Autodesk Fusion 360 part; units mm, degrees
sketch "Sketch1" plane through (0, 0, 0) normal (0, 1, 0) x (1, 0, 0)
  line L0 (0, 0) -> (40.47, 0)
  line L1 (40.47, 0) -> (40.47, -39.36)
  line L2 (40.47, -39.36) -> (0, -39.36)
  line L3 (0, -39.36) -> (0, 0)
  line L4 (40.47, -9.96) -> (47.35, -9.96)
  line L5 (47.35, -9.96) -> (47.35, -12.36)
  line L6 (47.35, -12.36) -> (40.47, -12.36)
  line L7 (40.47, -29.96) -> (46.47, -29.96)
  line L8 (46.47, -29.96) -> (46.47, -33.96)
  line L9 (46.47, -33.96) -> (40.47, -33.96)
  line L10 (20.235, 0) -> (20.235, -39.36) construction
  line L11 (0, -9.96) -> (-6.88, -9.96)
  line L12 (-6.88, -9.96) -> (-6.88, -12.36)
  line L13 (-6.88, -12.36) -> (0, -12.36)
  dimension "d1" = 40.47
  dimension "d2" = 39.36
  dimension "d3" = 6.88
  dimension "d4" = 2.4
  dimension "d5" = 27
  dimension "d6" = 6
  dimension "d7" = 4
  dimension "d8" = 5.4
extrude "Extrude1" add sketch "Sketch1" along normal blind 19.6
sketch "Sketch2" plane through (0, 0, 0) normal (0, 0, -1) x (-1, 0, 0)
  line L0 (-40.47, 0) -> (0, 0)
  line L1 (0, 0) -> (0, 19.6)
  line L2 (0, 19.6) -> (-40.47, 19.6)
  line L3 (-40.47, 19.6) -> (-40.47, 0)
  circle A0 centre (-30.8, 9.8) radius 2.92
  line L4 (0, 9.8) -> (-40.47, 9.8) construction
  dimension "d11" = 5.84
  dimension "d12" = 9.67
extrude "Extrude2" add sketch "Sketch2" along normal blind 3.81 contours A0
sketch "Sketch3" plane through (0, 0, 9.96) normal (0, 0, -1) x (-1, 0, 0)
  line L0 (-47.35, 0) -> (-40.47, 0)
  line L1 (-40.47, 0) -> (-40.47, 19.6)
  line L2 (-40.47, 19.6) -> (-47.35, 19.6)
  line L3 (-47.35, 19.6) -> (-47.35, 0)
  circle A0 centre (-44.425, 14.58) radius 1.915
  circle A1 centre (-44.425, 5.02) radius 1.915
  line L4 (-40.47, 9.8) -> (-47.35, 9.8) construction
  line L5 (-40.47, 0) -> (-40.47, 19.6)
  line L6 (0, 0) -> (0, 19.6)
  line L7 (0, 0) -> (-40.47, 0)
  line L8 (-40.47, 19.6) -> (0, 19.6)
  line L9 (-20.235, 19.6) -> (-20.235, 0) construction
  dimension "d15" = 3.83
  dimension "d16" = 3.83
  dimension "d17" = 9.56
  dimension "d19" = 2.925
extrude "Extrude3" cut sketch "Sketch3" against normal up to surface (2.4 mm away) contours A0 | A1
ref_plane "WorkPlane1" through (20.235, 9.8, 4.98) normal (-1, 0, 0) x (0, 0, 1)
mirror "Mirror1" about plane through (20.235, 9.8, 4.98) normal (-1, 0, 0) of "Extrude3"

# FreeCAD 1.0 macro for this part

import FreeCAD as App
import Part
import Sketcher
Q = App.Units.Quantity


def add_polygon(sketch, points):
    """Adds a closed chain of lines whose ends are joined by coincident constraints."""
    first, n = sketch.GeometryCount, len(points)
    for a, b in zip(points, points[1:] + points[:1]):
        sketch.addGeometry(Part.LineSegment(App.Vector(*a, 0), App.Vector(*b, 0)), False)
    for i in range(n):
        sketch.addConstraint(Sketcher.Constraint("Coincident", first + i, 2, first + (i + 1) % n, 1))

doc = App.newDocument("Part")
params = doc.addObject("Spreadsheet::Sheet", "Params")
for row, (alias, value) in enumerate([
    ("sketch1_width", "6 mm"),
    ("sketch1_height", "27 mm"),
    ("sketch1_height2", "4 mm"),
    ("sketch1_height3", "2.4 mm"),
    ("sketch1_height4", "5.4 mm"),
    ("pad1_length", "19.6 mm"),
    ("sketch2_diameter", "5.84 mm"),
    ("pad2_length", "3.81 mm"),
    ("sketch3_diameter", "3.83 mm"),
    ("pocket1_length", "2.4 mm"),
], start=1):
    params.set(f"A{row}", alias)
    params.set(f"B{row}", "=" + value)
    params.setAlias(f"B{row}", alias)

body = doc.addObject("PartDesign::Body", "Body")

sketch1 = body.newObject("Sketcher::SketchObject", "Sketch")
sketch1.AttachmentSupport = (doc.getObject("XZ_Plane"), [""])
sketch1.MapMode = "FlatFace"
add_polygon(sketch1, [(40.5, 0), (0, 0), (0, 10), (-6.9, 10), (-6.9, 12.4), (0, 12.4), (0, 39.4), (40.5, 39.4), (40.5, 34), (46.5, 34), (46.5, 30), (40.5, 30), (40.5, 12.4), (47.4, 12.4), (47.4, 10), (40.5, 10)])
sketch1.addConstraint(Sketcher.Constraint("Horizontal", 0))
sketch1.addConstraint(Sketcher.Constraint("Vertical", 1))
sketch1.addConstraint(Sketcher.Constraint("Horizontal", 2))
sketch1.addConstraint(Sketcher.Constraint("Vertical", 3))
sketch1.addConstraint(Sketcher.Constraint("Horizontal", 4))
sketch1.addConstraint(Sketcher.Constraint("Vertical", 5))
sketch1.addConstraint(Sketcher.Constraint("Horizontal", 6))
sketch1.addConstraint(Sketcher.Constraint("Vertical", 7))
sketch1.addConstraint(Sketcher.Constraint("Horizontal", 8))
sketch1.addConstraint(Sketcher.Constraint("Vertical", 9))
sketch1.addConstraint(Sketcher.Constraint("Horizontal", 10))
sketch1.addConstraint(Sketcher.Constraint("Vertical", 11))
sketch1.addConstraint(Sketcher.Constraint("Horizontal", 12))
sketch1.addConstraint(Sketcher.Constraint("Vertical", 13))
sketch1.addConstraint(Sketcher.Constraint("Horizontal", 14))
sketch1.addConstraint(Sketcher.Constraint("Vertical", 15))
sketch1.addConstraint(Sketcher.Constraint("Coincident", 0, 2, -1, 1))
sketch1.addConstraint(Sketcher.Constraint("PointOnObject", 4, 2, -2))
sketch1.addConstraint(Sketcher.Constraint("Horizontal", 4, 2, 11, 2))
sketch1.addConstraint(Sketcher.Constraint("Horizontal", 2, 2, 13, 2))
sketch1.addConstraint(Sketcher.Constraint("Vertical", 7, 2, 10, 2))
sketch1.addConstraint(Sketcher.Constraint("Vertical", 11, 2, 14, 2))
sketch1.addConstraint(Sketcher.Constraint("Equal", 4, 12))
sketch1.addConstraint(Sketcher.Constraint("DistanceX", 8, 1, 8, 2, Q("6 mm")))
sketch1.addConstraint(Sketcher.Constraint("DistanceY", 5, 1, 5, 2, Q("27 mm")))
sketch1.addConstraint(Sketcher.Constraint("DistanceY", 9, 2, 9, 1, Q("4 mm")))
sketch1.addConstraint(Sketcher.Constraint("DistanceY", 3, 1, 3, 2, Q("2.4 mm")))
sketch1.addConstraint(Sketcher.Constraint("DistanceY", 7, 2, 7, 1, Q("5.4 mm")))
sketch1.addConstraint(Sketcher.Constraint("DistanceX", 0, 2, 0, 1, Q("40.47 mm")))
sketch1.addConstraint(Sketcher.Constraint("DistanceX", 2, 2, 2, 1, Q("6.88 mm")))
sketch1.addConstraint(Sketcher.Constraint("DistanceY", -1, 1, 5, 2, Q("39.36 mm")))
sketch1.setExpression("Constraints[39]", "Params.sketch1_width")
sketch1.setExpression("Constraints[40]", "Params.sketch1_height")
sketch1.setExpression("Constraints[41]", "Params.sketch1_height2")
sketch1.setExpression("Constraints[42]", "Params.sketch1_height3")
sketch1.setExpression("Constraints[43]", "Params.sketch1_height4")
pad1 = body.newObject("PartDesign::Pad", "Pad")
pad1.Profile = sketch1
pad1.setExpression("Length", "Params.pad1_length")
pad1.Reversed = True

sketch2 = body.newObject("Sketcher::SketchObject", "Sketch001")
sketch2.AttachmentSupport = (doc.getObject("XY_Plane"), [""])
sketch2.MapMode = "FlatFace"
sketch2.addGeometry(Part.Circle(App.Vector(30.8, 9.8, 0), App.Vector(0, 0, 1), 2.9), False)
sketch2.addConstraint(Sketcher.Constraint("Diameter", 0, Q("5.84 mm")))
sketch2.addConstraint(Sketcher.Constraint("DistanceX", -1, 1, 0, 3, Q("30.8 mm")))
sketch2.addConstraint(Sketcher.Constraint("DistanceY", -1, 1, 0, 3, Q("9.8 mm")))
sketch2.setExpression("Constraints[0]", "Params.sketch2_diameter")
pad2 = body.newObject("PartDesign::Pad", "Pad001")
pad2.Profile = sketch2
pad2.setExpression("Length", "Params.pad2_length")
pad2.Reversed = True

sketch3 = body.newObject("Sketcher::SketchObject", "Sketch002")
sketch3.AttachmentSupport = (doc.getObject("XY_Plane"), [""])
sketch3.MapMode = "FlatFace"
sketch3.AttachmentOffset = App.Placement(App.Vector(0, 0, 9.96), App.Rotation())
sketch3.addGeometry(Part.Circle(App.Vector(44.4, 14.6, 0), App.Vector(0, 0, 1), 1.9), False)
sketch3.addGeometry(Part.Circle(App.Vector(44.4, 5, 0), App.Vector(0, 0, 1), 1.9), False)
sketch3.addConstraint(Sketcher.Constraint("Equal", 0, 1))
sketch3.addConstraint(Sketcher.Constraint("Vertical", 0, 3, 1, 3))
sketch3.addConstraint(Sketcher.Constraint("Diameter", 0, Q("3.83 mm")))
sketch3.addConstraint(Sketcher.Constraint("DistanceY", 1, 3, 0, 3, Q("9.56 mm")))
sketch3.addConstraint(Sketcher.Constraint("DistanceY", -1, 1, 0, 3, Q("14.58 mm")))
sketch3.addConstraint(Sketcher.Constraint("DistanceX", -1, 1, 0, 3, Q("44.425 mm")))
sketch3.setExpression("Constraints[2]", "Params.sketch3_diameter")
pocket1 = body.newObject("PartDesign::Pocket", "Pocket")
pocket1.Profile = sketch3
pocket1.setExpression("Length", "Params.pocket1_length")
pocket1.Reversed = True
doc.recompute()

datumplane = body.newObject("PartDesign::Plane", "DatumPlane")
datumplane.AttachmentSupport = (doc.getObject("YZ_Plane"), [""])
datumplane.MapMode = "FlatFace"
datumplane.AttachmentOffset = App.Placement(App.Vector(0, 0, 20.235), App.Rotation())
mirrored = body.newObject("PartDesign::Mirrored", "Mirrored")
mirrored.Originals = [pocket1]
mirrored.MirrorPlane = (datumplane, [""])
body.Tip = mirrored

doc.recompute()
